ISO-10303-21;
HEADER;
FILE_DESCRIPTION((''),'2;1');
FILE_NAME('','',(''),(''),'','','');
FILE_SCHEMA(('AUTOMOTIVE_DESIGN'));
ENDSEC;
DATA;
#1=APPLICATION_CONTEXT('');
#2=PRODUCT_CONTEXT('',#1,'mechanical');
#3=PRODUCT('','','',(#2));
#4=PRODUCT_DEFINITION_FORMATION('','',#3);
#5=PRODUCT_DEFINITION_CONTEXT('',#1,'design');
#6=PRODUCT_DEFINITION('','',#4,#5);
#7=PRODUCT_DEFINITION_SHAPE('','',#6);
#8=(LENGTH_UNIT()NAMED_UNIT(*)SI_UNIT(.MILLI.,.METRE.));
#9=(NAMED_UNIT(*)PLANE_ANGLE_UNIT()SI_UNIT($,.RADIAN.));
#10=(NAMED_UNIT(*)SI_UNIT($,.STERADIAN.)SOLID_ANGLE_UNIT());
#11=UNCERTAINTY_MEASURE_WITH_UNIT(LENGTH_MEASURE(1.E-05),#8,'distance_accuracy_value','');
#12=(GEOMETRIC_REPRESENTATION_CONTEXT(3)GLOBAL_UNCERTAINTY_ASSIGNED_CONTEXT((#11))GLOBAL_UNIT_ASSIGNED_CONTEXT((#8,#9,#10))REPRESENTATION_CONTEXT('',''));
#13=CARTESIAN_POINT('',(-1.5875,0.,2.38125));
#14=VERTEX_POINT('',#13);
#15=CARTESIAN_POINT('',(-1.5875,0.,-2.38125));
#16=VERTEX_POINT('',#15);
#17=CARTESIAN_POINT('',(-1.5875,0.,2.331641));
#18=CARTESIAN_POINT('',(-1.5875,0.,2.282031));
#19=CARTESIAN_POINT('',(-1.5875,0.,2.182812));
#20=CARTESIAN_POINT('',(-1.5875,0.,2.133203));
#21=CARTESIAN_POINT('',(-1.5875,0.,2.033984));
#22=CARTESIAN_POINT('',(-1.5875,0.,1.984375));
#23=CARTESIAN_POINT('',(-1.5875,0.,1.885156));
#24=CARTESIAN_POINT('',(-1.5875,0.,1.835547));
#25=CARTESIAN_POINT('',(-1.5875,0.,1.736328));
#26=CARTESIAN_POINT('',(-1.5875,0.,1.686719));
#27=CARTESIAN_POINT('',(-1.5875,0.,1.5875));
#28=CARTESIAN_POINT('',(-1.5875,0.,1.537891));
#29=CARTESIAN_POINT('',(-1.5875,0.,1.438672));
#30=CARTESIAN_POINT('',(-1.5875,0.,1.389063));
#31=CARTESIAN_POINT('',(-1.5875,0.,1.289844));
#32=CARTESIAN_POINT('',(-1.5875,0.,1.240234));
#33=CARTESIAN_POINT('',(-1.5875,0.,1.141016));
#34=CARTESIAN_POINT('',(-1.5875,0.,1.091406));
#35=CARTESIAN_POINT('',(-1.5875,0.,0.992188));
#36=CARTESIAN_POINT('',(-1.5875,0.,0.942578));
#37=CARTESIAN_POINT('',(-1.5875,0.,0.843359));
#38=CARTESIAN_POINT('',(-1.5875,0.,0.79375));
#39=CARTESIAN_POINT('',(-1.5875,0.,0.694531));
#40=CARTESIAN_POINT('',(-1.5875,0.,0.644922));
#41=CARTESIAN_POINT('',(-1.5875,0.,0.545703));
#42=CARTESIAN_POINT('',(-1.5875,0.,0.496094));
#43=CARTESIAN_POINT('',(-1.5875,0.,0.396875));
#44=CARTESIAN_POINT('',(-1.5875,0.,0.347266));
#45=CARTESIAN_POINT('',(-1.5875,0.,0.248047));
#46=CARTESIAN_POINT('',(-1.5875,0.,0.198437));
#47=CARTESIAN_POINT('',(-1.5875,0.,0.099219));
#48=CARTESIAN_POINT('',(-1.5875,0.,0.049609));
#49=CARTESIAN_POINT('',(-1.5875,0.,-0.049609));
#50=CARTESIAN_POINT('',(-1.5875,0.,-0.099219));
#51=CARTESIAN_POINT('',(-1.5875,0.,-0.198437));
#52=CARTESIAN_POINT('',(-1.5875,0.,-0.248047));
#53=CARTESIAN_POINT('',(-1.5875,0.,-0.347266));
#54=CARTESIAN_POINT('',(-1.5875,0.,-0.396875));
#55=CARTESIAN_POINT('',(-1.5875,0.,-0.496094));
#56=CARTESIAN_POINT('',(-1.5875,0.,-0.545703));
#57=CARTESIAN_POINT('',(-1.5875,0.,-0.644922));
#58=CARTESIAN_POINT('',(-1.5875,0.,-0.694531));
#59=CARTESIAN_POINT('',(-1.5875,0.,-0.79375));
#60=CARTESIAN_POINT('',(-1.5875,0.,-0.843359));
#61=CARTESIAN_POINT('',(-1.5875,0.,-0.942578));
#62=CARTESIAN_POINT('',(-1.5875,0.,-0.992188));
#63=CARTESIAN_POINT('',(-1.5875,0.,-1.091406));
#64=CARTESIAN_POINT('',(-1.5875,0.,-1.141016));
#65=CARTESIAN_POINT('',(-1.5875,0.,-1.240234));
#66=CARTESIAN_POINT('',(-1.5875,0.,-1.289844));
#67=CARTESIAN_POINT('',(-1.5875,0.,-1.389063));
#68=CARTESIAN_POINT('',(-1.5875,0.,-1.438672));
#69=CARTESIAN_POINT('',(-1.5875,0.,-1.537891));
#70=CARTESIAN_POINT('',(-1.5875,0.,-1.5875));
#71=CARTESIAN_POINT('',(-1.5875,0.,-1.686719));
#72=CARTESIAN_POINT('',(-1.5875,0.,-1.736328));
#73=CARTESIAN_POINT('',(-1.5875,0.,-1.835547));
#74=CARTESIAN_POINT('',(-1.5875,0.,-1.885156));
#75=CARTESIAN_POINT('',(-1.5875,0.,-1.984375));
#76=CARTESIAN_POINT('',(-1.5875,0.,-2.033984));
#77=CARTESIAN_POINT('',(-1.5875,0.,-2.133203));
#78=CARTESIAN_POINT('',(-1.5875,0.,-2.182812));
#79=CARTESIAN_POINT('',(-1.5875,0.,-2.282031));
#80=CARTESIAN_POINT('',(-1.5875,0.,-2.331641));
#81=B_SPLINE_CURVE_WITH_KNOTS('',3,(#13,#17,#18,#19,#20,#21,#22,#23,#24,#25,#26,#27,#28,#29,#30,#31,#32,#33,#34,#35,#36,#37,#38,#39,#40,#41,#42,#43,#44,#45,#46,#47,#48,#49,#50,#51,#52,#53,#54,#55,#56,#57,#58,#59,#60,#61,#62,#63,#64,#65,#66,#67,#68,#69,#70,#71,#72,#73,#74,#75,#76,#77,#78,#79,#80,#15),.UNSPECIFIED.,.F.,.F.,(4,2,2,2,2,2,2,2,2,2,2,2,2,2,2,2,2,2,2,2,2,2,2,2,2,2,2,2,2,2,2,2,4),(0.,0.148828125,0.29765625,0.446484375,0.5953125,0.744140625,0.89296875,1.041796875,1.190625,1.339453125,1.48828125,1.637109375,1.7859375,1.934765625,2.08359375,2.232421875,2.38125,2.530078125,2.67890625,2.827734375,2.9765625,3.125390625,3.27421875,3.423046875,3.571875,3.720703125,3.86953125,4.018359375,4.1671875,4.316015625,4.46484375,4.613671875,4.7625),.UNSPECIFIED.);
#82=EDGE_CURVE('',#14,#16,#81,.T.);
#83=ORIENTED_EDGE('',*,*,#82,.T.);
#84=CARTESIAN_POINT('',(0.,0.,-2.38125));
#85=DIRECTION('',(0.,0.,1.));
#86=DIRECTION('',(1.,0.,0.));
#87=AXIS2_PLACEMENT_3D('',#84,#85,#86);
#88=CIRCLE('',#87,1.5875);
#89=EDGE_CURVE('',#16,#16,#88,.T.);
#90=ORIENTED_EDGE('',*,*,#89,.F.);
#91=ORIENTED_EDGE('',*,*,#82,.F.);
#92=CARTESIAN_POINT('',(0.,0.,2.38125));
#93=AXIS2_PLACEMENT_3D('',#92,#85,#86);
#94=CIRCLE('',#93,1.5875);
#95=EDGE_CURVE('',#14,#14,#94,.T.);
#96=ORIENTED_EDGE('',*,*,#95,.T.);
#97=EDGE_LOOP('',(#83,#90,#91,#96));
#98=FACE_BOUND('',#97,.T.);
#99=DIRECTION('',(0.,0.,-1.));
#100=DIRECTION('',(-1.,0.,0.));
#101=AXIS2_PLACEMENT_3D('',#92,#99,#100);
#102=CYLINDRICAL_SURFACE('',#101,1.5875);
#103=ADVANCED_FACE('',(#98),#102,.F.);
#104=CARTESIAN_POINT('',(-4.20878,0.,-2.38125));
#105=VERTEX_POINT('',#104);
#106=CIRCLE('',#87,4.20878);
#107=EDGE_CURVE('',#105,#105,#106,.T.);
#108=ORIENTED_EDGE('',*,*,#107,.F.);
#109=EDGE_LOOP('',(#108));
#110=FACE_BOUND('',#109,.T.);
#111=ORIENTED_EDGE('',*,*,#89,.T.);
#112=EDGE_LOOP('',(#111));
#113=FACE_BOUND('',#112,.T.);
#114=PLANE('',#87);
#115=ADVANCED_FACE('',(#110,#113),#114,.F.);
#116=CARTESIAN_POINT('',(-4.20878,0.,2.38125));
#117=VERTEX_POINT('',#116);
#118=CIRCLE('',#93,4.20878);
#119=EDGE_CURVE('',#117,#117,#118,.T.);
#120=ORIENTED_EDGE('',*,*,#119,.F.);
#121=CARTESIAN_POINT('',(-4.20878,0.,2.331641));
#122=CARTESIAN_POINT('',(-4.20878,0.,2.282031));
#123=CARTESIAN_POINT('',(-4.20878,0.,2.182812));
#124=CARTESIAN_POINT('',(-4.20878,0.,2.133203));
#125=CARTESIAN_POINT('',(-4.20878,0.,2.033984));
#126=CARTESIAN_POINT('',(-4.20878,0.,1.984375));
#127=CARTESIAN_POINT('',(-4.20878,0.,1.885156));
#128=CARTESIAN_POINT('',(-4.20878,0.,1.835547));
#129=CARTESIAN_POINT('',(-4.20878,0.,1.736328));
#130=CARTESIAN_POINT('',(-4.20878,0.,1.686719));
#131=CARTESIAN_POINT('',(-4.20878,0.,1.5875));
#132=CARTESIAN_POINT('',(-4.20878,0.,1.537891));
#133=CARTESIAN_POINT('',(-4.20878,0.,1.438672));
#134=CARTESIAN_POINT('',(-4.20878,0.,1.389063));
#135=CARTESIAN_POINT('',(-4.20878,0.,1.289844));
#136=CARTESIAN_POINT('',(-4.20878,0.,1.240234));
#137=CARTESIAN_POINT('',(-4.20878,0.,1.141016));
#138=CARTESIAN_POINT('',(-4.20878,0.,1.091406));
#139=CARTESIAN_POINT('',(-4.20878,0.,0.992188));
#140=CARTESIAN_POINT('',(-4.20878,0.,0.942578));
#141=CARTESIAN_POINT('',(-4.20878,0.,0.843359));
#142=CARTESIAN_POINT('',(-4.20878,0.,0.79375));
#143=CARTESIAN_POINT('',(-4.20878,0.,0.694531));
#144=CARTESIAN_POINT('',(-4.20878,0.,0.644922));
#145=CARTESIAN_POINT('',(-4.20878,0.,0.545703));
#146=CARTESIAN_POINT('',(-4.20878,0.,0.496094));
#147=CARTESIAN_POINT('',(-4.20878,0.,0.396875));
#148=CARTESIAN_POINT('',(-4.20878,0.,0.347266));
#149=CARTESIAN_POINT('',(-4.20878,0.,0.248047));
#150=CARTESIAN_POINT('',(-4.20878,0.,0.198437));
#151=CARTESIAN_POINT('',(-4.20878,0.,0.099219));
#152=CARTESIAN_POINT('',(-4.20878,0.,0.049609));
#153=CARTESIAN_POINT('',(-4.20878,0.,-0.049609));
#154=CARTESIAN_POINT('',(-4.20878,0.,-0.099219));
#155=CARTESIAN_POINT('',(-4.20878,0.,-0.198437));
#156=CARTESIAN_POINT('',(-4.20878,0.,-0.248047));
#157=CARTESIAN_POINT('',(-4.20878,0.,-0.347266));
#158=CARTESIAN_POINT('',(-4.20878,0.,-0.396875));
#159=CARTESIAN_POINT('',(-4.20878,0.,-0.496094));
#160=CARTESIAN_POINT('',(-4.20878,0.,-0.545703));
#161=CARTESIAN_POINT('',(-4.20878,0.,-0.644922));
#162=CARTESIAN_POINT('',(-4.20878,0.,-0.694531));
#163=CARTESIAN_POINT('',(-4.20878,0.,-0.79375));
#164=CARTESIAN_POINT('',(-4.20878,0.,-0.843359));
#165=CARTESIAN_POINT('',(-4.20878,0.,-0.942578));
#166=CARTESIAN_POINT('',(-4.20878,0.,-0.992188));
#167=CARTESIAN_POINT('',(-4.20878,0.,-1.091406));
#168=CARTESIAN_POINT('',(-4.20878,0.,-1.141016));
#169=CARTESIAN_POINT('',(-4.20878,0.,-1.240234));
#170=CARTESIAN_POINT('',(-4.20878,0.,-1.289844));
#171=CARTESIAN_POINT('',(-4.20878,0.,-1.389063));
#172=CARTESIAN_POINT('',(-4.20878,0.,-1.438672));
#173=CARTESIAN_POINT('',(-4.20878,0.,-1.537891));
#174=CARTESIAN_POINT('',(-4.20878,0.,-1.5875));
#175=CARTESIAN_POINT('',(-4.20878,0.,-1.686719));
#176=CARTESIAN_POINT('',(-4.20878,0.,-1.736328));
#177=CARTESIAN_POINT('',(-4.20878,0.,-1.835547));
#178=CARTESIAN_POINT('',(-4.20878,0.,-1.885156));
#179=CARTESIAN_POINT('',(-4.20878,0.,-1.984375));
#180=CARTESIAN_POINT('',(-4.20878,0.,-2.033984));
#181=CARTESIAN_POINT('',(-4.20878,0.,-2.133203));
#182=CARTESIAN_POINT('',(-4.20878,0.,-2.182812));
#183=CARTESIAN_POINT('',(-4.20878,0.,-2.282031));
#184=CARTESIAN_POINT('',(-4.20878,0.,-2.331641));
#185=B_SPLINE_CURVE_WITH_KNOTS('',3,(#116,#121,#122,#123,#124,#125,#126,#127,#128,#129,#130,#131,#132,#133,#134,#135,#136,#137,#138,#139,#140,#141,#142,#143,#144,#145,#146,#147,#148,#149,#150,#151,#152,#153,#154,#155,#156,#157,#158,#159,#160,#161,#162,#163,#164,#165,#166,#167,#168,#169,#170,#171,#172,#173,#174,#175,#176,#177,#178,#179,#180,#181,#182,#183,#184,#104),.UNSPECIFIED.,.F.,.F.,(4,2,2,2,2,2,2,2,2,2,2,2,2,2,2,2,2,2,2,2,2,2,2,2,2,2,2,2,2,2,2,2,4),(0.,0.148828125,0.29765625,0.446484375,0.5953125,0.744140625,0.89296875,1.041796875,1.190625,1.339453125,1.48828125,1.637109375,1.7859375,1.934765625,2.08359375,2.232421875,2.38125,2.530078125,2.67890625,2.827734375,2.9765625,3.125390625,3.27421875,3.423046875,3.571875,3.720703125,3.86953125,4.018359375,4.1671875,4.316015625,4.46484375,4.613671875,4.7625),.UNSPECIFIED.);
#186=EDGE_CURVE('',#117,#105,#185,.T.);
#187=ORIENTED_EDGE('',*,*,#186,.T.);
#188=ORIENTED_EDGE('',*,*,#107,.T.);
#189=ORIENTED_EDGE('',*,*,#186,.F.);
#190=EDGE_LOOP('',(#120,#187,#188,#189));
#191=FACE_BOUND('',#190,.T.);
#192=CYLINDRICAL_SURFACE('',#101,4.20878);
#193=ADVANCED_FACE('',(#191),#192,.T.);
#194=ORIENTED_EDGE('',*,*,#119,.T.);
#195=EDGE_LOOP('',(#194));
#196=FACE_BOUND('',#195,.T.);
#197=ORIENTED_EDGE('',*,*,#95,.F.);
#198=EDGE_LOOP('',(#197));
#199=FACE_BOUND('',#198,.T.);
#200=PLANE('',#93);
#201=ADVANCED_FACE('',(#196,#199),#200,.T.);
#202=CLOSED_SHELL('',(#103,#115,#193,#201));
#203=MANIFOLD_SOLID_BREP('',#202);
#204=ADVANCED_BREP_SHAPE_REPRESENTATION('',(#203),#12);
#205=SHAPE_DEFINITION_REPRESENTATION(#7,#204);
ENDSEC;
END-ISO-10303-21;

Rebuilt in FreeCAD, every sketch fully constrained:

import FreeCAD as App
import Part
import Sketcher
Q = App.Units.Quantity

doc = App.newDocument("Part")
body = doc.addObject("PartDesign::Body", "Body")

# Sketch on XY plane
sketch1 = doc.addObject("Sketcher::SketchObject", "Sketch")
body.addObject(sketch1)
sketch1.AttachmentSupport = (doc.XY_Plane, [""])
sketch1.MapMode = "FlatFace"
sketch1.addGeometry([
    Part.Circle(App.Vector(0, 0, 0), App.Vector(0, 0, 1), 4.20878),
    Part.Circle(App.Vector(0, 0, 0), App.Vector(0, 0, 1), 1.5875),
], False)
sketch1.addConstraint([
    Sketcher.Constraint("Coincident", 0, 3, -1, 1),
    Sketcher.Constraint("Coincident", 1, 3, -1, 1),
    Sketcher.Constraint("Diameter", 1, Q("0.125 in")),
    Sketcher.Constraint("Diameter", 0, Q("0.3314 in")),
])
pad1 = doc.addObject("PartDesign::Pad", "Pad")
body.addObject(pad1)
pad1.Profile = sketch1
pad1.Length = Q("0.1875 in")
pad1.Midplane = True

doc.recompute()
